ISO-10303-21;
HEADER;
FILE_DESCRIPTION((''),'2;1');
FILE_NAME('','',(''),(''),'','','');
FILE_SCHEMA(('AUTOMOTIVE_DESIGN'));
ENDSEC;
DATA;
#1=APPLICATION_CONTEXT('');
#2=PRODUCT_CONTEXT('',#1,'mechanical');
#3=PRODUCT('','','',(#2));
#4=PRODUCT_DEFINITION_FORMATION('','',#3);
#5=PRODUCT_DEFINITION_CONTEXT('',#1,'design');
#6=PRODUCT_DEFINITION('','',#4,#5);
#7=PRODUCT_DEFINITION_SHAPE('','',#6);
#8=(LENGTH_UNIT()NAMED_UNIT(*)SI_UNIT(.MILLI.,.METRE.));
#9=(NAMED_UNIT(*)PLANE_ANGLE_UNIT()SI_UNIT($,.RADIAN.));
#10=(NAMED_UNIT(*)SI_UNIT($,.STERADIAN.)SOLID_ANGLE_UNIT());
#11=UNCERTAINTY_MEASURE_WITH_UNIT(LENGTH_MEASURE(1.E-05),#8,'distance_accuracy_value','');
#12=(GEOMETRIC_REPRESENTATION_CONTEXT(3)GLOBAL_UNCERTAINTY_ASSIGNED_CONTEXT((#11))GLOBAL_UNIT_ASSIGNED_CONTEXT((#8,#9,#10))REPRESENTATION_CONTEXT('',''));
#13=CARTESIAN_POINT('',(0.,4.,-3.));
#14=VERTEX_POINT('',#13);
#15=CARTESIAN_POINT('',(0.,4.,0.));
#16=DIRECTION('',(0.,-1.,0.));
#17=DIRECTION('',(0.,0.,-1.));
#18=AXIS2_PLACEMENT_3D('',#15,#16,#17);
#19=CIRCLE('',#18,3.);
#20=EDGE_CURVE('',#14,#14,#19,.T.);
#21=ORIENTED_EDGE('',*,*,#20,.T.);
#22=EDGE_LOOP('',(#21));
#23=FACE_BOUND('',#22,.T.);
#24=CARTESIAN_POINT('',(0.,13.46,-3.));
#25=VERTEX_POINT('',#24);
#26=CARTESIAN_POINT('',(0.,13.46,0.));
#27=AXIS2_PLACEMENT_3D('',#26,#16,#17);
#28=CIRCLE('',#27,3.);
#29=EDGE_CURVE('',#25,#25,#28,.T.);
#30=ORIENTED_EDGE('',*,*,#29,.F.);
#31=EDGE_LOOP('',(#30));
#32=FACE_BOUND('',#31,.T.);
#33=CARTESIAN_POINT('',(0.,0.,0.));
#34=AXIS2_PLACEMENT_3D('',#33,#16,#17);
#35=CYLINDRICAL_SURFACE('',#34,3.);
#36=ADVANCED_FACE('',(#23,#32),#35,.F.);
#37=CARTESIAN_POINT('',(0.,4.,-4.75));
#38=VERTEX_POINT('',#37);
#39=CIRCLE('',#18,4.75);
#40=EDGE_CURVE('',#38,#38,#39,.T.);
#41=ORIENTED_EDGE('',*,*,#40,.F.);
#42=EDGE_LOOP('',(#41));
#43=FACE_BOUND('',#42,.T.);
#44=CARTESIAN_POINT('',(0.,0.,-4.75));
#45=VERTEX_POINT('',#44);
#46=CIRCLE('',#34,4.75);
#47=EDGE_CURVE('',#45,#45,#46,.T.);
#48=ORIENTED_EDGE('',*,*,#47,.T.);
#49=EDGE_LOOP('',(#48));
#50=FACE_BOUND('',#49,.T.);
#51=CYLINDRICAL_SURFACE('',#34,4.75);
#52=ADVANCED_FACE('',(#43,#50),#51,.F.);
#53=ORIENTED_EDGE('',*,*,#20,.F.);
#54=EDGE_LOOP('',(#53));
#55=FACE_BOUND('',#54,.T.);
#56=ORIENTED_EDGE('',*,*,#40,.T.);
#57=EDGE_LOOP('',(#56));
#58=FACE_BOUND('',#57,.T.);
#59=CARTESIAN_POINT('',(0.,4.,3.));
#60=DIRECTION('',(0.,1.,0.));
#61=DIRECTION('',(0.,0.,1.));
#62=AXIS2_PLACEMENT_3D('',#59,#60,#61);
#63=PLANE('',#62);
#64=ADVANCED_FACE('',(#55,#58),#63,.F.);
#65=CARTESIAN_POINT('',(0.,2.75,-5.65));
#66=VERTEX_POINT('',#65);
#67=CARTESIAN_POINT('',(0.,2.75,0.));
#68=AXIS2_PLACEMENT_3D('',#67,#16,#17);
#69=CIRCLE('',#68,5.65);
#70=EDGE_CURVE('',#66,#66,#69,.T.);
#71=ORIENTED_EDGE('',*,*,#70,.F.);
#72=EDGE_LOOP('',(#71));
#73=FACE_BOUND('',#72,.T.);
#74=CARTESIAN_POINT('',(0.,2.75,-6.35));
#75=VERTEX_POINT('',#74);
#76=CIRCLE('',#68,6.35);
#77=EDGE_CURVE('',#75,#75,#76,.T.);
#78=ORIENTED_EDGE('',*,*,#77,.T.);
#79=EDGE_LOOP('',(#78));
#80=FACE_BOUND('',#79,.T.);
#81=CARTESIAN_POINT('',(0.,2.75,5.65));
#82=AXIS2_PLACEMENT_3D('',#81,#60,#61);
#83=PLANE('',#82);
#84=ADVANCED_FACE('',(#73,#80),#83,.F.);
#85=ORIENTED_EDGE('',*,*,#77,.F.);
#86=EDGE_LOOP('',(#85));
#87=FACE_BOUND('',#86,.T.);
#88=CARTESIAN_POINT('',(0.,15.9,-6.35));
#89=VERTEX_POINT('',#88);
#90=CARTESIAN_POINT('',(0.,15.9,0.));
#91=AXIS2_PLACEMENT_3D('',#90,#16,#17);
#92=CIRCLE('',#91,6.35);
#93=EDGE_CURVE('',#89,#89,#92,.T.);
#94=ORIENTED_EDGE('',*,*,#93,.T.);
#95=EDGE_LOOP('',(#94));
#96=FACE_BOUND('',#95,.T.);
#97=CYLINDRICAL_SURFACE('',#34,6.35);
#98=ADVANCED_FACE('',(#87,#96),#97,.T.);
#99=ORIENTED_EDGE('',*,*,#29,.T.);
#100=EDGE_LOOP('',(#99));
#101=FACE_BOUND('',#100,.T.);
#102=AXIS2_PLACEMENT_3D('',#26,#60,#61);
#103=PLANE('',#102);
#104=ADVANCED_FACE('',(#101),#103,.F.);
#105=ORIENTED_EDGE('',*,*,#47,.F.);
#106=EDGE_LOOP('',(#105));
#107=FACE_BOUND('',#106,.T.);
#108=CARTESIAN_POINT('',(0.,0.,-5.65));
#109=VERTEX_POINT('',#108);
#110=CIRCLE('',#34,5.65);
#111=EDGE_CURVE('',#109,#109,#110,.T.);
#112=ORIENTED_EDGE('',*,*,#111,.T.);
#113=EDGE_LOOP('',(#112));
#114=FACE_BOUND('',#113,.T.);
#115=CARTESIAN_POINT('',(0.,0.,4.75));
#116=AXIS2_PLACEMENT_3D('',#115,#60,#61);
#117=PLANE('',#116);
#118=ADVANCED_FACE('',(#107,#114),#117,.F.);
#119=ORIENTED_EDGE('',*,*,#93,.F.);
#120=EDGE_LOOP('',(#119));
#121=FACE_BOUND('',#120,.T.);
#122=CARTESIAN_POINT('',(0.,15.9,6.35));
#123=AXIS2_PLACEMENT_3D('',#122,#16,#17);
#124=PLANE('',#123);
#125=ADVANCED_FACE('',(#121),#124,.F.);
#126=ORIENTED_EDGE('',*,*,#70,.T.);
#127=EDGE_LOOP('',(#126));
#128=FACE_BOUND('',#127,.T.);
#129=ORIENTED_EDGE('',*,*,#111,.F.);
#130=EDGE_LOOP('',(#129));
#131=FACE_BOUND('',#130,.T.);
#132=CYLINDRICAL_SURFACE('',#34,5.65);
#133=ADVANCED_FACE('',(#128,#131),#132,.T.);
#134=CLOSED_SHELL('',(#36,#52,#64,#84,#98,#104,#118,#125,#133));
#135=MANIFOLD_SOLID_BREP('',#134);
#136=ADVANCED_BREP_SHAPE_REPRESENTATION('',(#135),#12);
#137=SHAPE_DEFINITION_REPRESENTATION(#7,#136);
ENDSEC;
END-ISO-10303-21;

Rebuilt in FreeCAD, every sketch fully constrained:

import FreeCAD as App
import Part
import Sketcher

V = App.Vector


def add_polygon(sketch, points):
    """Adds a closed chain of lines whose ends are joined by coincident constraints."""
    first, n = sketch.GeometryCount, len(points)
    for a, b in zip(points, points[1:] + points[:1]):
        sketch.addGeometry(Part.LineSegment(App.Vector(*a, 0), App.Vector(*b, 0)), False)
    for i in range(n):
        sketch.addConstraint(Sketcher.Constraint("Coincident", first + i, 2, first + (i + 1) % n, 1))

doc = App.newDocument("Part")
body = doc.addObject("PartDesign::Body", "Body")

# Sketch on YZ plane
sketch1 = body.newObject("Sketcher::SketchObject", "Sketch")
sketch1.AttachmentSupport = (doc.getObject("YZ_Plane"), [""])
sketch1.MapMode = "FlatFace"
add_polygon(sketch1, [(4, 4.8), (4, 3), (13.5, 3), (13.5, 0), (15.9, 0), (15.9, 6.3), (2.8, 6.3), (2.8, 5.7), (0, 5.7), (0, 4.8)])  # lines 0-9
sketch1.addConstraint(Sketcher.Constraint("Vertical", 0))
sketch1.addConstraint(Sketcher.Constraint("Horizontal", 1))
sketch1.addConstraint(Sketcher.Constraint("Vertical", 2))
sketch1.addConstraint(Sketcher.Constraint("Horizontal", 3))
sketch1.addConstraint(Sketcher.Constraint("Vertical", 4))
sketch1.addConstraint(Sketcher.Constraint("Horizontal", 5))
sketch1.addConstraint(Sketcher.Constraint("Vertical", 6))
sketch1.addConstraint(Sketcher.Constraint("Horizontal", 7))
sketch1.addConstraint(Sketcher.Constraint("Vertical", 8))
sketch1.addConstraint(Sketcher.Constraint("Horizontal", 9))
sketch1.addConstraint(Sketcher.Constraint("PointOnObject", 2, 2, -1))
sketch1.addConstraint(Sketcher.Constraint("PointOnObject", 7, 2, -2))
sketch1.addConstraint(Sketcher.Constraint("DistanceX", 9, 1, 9, 2, 4.0))
sketch1.addConstraint(Sketcher.Constraint("DistanceY", 2, 2, 2, 1, 3.0))
sketch1.addConstraint(Sketcher.Constraint("DistanceY", 6, 2, 6, 1, 0.7))
sketch1.addConstraint(Sketcher.Constraint("DistanceY", 8, 2, 8, 1, 0.9))
sketch1.addConstraint(Sketcher.Constraint("DistanceX", 1, 1, 1, 2, 9.46))
sketch1.addConstraint(Sketcher.Constraint("DistanceX", 3, 1, 3, 2, 2.44))
sketch1.addConstraint(Sketcher.Constraint("DistanceX", 5, 2, 5, 1, 13.15))
sketch1.addConstraint(Sketcher.Constraint("DistanceY", 0, 2, 0, 1, 1.75))
revolution = body.newObject("PartDesign::Revolution", "Revolution")
revolution.Profile = sketch1
revolution.ReferenceAxis = (sketch1, ["H_Axis"])
revolution.Angle = 360

doc.recompute()
